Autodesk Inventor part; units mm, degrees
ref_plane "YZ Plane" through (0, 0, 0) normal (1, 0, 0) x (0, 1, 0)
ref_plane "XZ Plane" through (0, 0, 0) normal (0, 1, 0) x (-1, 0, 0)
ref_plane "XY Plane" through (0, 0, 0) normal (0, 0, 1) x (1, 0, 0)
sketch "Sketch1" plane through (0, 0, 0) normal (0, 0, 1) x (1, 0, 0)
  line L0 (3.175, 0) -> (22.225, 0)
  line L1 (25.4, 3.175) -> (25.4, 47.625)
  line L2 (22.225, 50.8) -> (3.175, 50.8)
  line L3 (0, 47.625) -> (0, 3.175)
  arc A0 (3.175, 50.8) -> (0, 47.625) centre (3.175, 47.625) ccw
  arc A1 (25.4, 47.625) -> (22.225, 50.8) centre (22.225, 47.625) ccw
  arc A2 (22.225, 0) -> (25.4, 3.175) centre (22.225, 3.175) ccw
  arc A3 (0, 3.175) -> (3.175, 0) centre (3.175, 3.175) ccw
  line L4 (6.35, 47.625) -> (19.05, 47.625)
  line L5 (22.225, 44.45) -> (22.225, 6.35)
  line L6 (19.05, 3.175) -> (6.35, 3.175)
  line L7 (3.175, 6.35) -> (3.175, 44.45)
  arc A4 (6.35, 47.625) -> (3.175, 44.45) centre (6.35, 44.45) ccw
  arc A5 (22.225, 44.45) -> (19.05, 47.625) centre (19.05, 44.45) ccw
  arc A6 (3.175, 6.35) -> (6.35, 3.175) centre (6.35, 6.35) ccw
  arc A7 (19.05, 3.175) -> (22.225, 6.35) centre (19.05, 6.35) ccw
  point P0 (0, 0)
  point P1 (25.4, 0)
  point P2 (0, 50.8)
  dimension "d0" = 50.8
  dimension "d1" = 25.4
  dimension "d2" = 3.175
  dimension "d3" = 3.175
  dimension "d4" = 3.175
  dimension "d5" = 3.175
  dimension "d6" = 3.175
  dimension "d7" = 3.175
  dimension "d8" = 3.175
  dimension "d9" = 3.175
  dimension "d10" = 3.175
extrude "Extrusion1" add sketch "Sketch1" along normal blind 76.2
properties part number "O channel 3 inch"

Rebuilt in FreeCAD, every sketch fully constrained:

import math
import FreeCAD as App
import Part
import Sketcher
Q = App.Units.Quantity

doc = App.newDocument("Part")
body = doc.addObject("PartDesign::Body", "Body")

# Sketch on XY plane
sketch1 = body.newObject("Sketcher::SketchObject", "Sketch")
sketch1.AttachmentSupport = (doc.getObject("XY_Plane"), [""])
sketch1.MapMode = "FlatFace"
sketch1.addGeometry(Part.ArcOfCircle(Part.Circle(App.Vector(3.175, 3.175, 0), App.Vector(0, 0, 1), 3.175), math.radians(180), math.radians(270)), False)
sketch1.addGeometry(Part.LineSegment(App.Vector(3.175, 0, 0), App.Vector(22.225, 0, 0)), False)
sketch1.addGeometry(Part.ArcOfCircle(Part.Circle(App.Vector(22.225, 3.175, 0), App.Vector(0, 0, 1), 3.175), math.radians(-90), math.radians(0)), False)
sketch1.addGeometry(Part.LineSegment(App.Vector(25.4, 3.175, 0), App.Vector(25.4, 47.625, 0)), False)
sketch1.addGeometry(Part.ArcOfCircle(Part.Circle(App.Vector(22.225, 47.625, 0), App.Vector(0, 0, 1), 3.175), math.radians(0), math.radians(90)), False)
sketch1.addGeometry(Part.LineSegment(App.Vector(22.225, 50.8, 0), App.Vector(3.175, 50.8, 0)), False)
sketch1.addGeometry(Part.ArcOfCircle(Part.Circle(App.Vector(3.175, 47.625, 0), App.Vector(0, 0, 1), 3.175), math.radians(90), math.radians(180)), False)
sketch1.addGeometry(Part.LineSegment(App.Vector(0, 47.625, 0), App.Vector(0, 3.175, 0)), False)
sketch1.addGeometry(Part.ArcOfCircle(Part.Circle(App.Vector(6.35, 44.45, 0), App.Vector(0, 0, 1), 3.175), math.radians(90), math.radians(180)), False)
sketch1.addGeometry(Part.LineSegment(App.Vector(6.35, 47.625, 0), App.Vector(19.05, 47.625, 0)), False)
sketch1.addGeometry(Part.ArcOfCircle(Part.Circle(App.Vector(19.05, 44.45, 0), App.Vector(0, 0, 1), 3.175), math.radians(0), math.radians(90)), False)
sketch1.addGeometry(Part.LineSegment(App.Vector(22.225, 44.45, 0), App.Vector(22.225, 6.35, 0)), False)
sketch1.addGeometry(Part.ArcOfCircle(Part.Circle(App.Vector(19.05, 6.35, 0), App.Vector(0, 0, 1), 3.175), math.radians(-90), math.radians(0)), False)
sketch1.addGeometry(Part.LineSegment(App.Vector(19.05, 3.175, 0), App.Vector(6.35, 3.175, 0)), False)
sketch1.addGeometry(Part.ArcOfCircle(Part.Circle(App.Vector(6.35, 6.35, 0), App.Vector(0, 0, 1), 3.175), math.radians(180), math.radians(270)), False)
sketch1.addGeometry(Part.LineSegment(App.Vector(3.175, 6.35, 0), App.Vector(3.175, 44.45, 0)), False)
sketch1.addConstraint(Sketcher.Constraint("Tangent", 0, 2, 1, 1))
sketch1.addConstraint(Sketcher.Constraint("Tangent", 1, 2, 2, 1))
sketch1.addConstraint(Sketcher.Constraint("Tangent", 2, 2, 3, 1))
sketch1.addConstraint(Sketcher.Constraint("Tangent", 3, 2, 4, 1))
sketch1.addConstraint(Sketcher.Constraint("Tangent", 4, 2, 5, 1))
sketch1.addConstraint(Sketcher.Constraint("Tangent", 5, 2, 6, 1))
sketch1.addConstraint(Sketcher.Constraint("Tangent", 6, 2, 7, 1))
sketch1.addConstraint(Sketcher.Constraint("Tangent", 7, 2, 0, 1))
sketch1.addConstraint(Sketcher.Constraint("Tangent", 8, 1, 9, 1))
sketch1.addConstraint(Sketcher.Constraint("Tangent", 9, 2, 10, 2))
sketch1.addConstraint(Sketcher.Constraint("Tangent", 10, 1, 11, 1))
sketch1.addConstraint(Sketcher.Constraint("Tangent", 11, 2, 12, 2))
sketch1.addConstraint(Sketcher.Constraint("Tangent", 12, 1, 13, 1))
sketch1.addConstraint(Sketcher.Constraint("Tangent", 13, 2, 14, 2))
sketch1.addConstraint(Sketcher.Constraint("Tangent", 14, 1, 15, 1))
sketch1.addConstraint(Sketcher.Constraint("Tangent", 15, 2, 8, 2))
sketch1.addConstraint(Sketcher.Constraint("Horizontal", 1))
sketch1.addConstraint(Sketcher.Constraint("Vertical", 3))
sketch1.addConstraint(Sketcher.Constraint("Horizontal", 5))
sketch1.addConstraint(Sketcher.Constraint("Vertical", 7))
sketch1.addConstraint(Sketcher.Constraint("Horizontal", 9))
sketch1.addConstraint(Sketcher.Constraint("Vertical", 11))
sketch1.addConstraint(Sketcher.Constraint("Horizontal", 13))
sketch1.addConstraint(Sketcher.Constraint("Vertical", 15))
sketch1.addConstraint(Sketcher.Constraint("Equal", 0, 2))
sketch1.addConstraint(Sketcher.Constraint("Equal", 2, 4))
sketch1.addConstraint(Sketcher.Constraint("Equal", 4, 6))
sketch1.addConstraint(Sketcher.Constraint("Equal", 6, 8))
sketch1.addConstraint(Sketcher.Constraint("Equal", 8, 10))
sketch1.addConstraint(Sketcher.Constraint("Equal", 10, 12))
sketch1.addConstraint(Sketcher.Constraint("Equal", 12, 14))
sketch1.addConstraint(Sketcher.Constraint("PointOnObject", 0, 2, -1))
sketch1.addConstraint(Sketcher.Constraint("PointOnObject", 6, 2, -2))
sketch1.addConstraint(Sketcher.Constraint("Horizontal", 6, 2, 8, 1))
sketch1.addConstraint(Sketcher.Constraint("Horizontal", 7, 2, 12, 1))
sketch1.addConstraint(Sketcher.Constraint("Vertical", 4, 2, 10, 1))
sketch1.addConstraint(Sketcher.Constraint("Vertical", 5, 2, 14, 1))
sketch1.addConstraint(Sketcher.Constraint("DistanceX", -1, 1, 2, 2, Q("1 in")))
sketch1.addConstraint(Sketcher.Constraint("DistanceY", -1, 1, 4, 2, Q("2 in")))
sketch1.addConstraint(Sketcher.Constraint("Radius", 0, Q("0.125 in")))
pad1 = body.newObject("PartDesign::Pad", "Pad")
pad1.Profile = sketch1
pad1.Length = Q("3 in")

doc.recompute()
